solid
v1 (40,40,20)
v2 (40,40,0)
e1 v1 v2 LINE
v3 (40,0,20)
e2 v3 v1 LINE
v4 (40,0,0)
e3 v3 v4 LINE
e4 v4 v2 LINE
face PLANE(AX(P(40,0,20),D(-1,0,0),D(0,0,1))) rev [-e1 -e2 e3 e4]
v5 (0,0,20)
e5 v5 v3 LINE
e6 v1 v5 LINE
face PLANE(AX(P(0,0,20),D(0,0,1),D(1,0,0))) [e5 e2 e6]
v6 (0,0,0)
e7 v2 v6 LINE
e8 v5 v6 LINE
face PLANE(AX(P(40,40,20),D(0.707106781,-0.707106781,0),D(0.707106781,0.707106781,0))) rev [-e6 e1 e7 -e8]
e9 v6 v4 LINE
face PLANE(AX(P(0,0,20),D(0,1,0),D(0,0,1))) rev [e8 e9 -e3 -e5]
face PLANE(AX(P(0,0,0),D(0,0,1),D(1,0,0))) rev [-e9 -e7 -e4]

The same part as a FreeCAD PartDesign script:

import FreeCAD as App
import Part
import Sketcher
from FreeCAD import Vector
Q = App.Units.Quantity

doc = App.newDocument("Part")
body = doc.addObject("PartDesign::Body", "Body")

sketch1 = body.newObject("Sketcher::SketchObject", "Sketch")
sketch1.AttachmentSupport = (doc.getObject("XY_Plane"), [""])
sketch1.MapMode = "FlatFace"
sketch1.addGeometry([
    Part.LineSegment(Vector(0, 0, 0), Vector(40, 0, 0)),
    Part.LineSegment(Vector(40, 0, 0), Vector(40, 40, 0)),
    Part.LineSegment(Vector(40, 40, 0), Vector(0, 0, 0)),
], False)
sketch1.addConstraint([
    Sketcher.Constraint("Coincident", 0, 2, 1, 1),
    Sketcher.Constraint("Coincident", 1, 2, 2, 1),
    Sketcher.Constraint("Coincident", 2, 2, 0, 1),
    Sketcher.Constraint("Horizontal", 0),
    Sketcher.Constraint("Vertical", 1),
    Sketcher.Constraint("Coincident", 2, 2, -1, 1),
    Sketcher.Constraint("Equal", 0, 1),
    Sketcher.Constraint("DistanceX", 0, 1, 0, 2, Q("40 mm")),
])
pad1 = body.newObject("PartDesign::Pad", "Pad")
pad1.Profile = sketch1
pad1.Length = 20

doc.recompute()
